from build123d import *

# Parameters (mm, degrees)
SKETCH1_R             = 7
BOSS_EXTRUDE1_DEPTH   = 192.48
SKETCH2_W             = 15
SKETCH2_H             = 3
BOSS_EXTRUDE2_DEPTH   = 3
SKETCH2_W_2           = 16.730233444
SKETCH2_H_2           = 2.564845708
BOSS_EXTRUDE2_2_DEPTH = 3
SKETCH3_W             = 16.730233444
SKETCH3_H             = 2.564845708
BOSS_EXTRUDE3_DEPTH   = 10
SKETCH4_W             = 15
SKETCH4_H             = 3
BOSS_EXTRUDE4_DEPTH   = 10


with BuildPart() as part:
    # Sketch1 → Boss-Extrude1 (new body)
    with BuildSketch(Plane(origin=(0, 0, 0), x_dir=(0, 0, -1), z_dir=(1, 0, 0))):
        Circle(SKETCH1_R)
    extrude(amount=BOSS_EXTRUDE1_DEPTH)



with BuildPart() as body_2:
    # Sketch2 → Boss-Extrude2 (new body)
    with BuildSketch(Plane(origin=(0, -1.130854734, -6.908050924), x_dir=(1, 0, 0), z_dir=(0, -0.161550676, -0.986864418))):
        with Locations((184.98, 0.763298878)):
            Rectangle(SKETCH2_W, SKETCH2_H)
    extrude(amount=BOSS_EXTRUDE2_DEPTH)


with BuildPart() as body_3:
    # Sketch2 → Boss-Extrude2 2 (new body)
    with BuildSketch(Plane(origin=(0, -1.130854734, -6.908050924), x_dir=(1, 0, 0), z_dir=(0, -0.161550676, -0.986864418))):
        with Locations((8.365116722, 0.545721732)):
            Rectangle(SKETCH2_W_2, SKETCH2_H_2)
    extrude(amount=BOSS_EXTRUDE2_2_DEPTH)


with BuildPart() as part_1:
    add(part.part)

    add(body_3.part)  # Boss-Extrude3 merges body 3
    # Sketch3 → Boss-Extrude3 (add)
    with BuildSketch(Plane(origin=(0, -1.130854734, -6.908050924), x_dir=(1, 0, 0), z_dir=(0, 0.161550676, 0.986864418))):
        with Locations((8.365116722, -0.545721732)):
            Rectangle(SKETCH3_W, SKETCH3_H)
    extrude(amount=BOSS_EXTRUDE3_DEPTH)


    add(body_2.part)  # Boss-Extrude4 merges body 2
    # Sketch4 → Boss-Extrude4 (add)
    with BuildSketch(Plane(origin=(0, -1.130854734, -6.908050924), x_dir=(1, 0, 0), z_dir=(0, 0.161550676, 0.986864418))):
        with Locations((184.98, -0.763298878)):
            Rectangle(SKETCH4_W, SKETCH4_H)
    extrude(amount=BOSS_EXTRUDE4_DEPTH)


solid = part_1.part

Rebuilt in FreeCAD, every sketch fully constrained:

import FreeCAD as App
import Part
import Sketcher


def add_polygon(sketch, points):
    """Adds a closed chain of lines whose ends are joined by coincident constraints."""
    first, n = sketch.GeometryCount, len(points)
    for a, b in zip(points, points[1:] + points[:1]):
        sketch.addGeometry(Part.LineSegment(App.Vector(*a, 0), App.Vector(*b, 0)), False)
    for i in range(n):
        sketch.addConstraint(Sketcher.Constraint("Coincident", first + i, 2, first + (i + 1) % n, 1))

doc = App.newDocument("Part")
body = doc.addObject("PartDesign::Body", "Body")

sketch1 = body.newObject("Sketcher::SketchObject", "Sketch")
sketch1.AttachmentSupport = (doc.getObject("YZ_Plane"), [""])
sketch1.MapMode = "FlatFace"
sketch1.addGeometry(Part.Circle(App.Vector(0, 0, 0), App.Vector(0, 0, 1), 7), False)
sketch1.addConstraint(Sketcher.Constraint("Coincident", 0, 3, -1, 1))
sketch1.addConstraint(Sketcher.Constraint("Diameter", 0, 14.0))
pad1 = body.newObject("PartDesign::Pad", "Pad")
pad1.Profile = sketch1
pad1.Length = 192.48
body2 = doc.addObject("PartDesign::Body", "Body001")

sketch2 = body2.newObject("Sketcher::SketchObject", "Sketch001")
sketch2.Placement = App.Placement(App.Vector(0, -1.130855, -6.908051), App.Rotation(App.Vector(1, 0, 0), App.Vector(0, -0.986864418, 0.161550676), App.Vector(0, -0.161550676, -0.986864418), "ZXY"))
add_polygon(sketch2, [(177.48, 2.263299), (177.48, -0.736701), (192.48, -0.736701), (192.48, 2.263299)])
sketch2.addConstraint(Sketcher.Constraint("Vertical", 0))
sketch2.addConstraint(Sketcher.Constraint("Horizontal", 1))
sketch2.addConstraint(Sketcher.Constraint("Vertical", 2))
sketch2.addConstraint(Sketcher.Constraint("Horizontal", 3))
sketch2.addConstraint(Sketcher.Constraint("DistanceX", 1, 1, 1, 2, 15.0))
sketch2.addConstraint(Sketcher.Constraint("DistanceY", 0, 2, 0, 1, 3.0))
sketch2.addConstraint(Sketcher.Constraint("DistanceX", -1, 1, 0, 2, 177.48))
sketch2.addConstraint(Sketcher.Constraint("DistanceY", 0, 2, -1, 1, 0.736701))
pad2 = body2.newObject("PartDesign::Pad", "Pad001")
pad2.Profile = sketch2
pad2.Length = 3
body3 = doc.addObject("PartDesign::Body", "Body002")

sketch3 = body3.newObject("Sketcher::SketchObject", "Sketch002")
sketch3.Placement = App.Placement(App.Vector(0, -1.130855, -6.908051), App.Rotation(App.Vector(1, 0, 0), App.Vector(0, -0.986864418, 0.161550676), App.Vector(0, -0.161550676, -0.986864418), "ZXY"))
add_polygon(sketch3, [(0, 1.828145), (0, -0.736701), (16.730233, -0.736701), (16.730233, 1.828145)])
sketch3.addConstraint(Sketcher.Constraint("Vertical", 0))
sketch3.addConstraint(Sketcher.Constraint("Horizontal", 1))
sketch3.addConstraint(Sketcher.Constraint("Vertical", 2))
sketch3.addConstraint(Sketcher.Constraint("Horizontal", 3))
sketch3.addConstraint(Sketcher.Constraint("PointOnObject", 0, 2, -2))
sketch3.addConstraint(Sketcher.Constraint("DistanceY", 0, 2, -1, 1, 0.736701))
sketch3.addConstraint(Sketcher.Constraint("DistanceX", 1, 1, 1, 2, 16.730233))
sketch3.addConstraint(Sketcher.Constraint("DistanceY", 0, 2, 0, 1, 2.564846))
pad3 = body3.newObject("PartDesign::Pad", "Pad002")
pad3.Profile = sketch3
pad3.Length = 3
body.AllowCompound = True
doc.recompute()

boolean = body.newObject("PartDesign::Boolean", "Boolean")
boolean.Type = "Fuse"
boolean.addObjects([body3])

sketch4 = body.newObject("Sketcher::SketchObject", "Sketch003")
sketch4.Placement = App.Placement(App.Vector(0, -1.130855, -6.908051), App.Rotation(App.Vector(1, 0, 0), App.Vector(0, 0.986864418, -0.161550676), App.Vector(0, 0.161550676, 0.986864418), "ZXY"))
add_polygon(sketch4, [(0, 0.736701), (0, -1.828145), (16.730233, -1.828145), (16.730233, 0.736701)])
sketch4.addConstraint(Sketcher.Constraint("Vertical", 0))
sketch4.addConstraint(Sketcher.Constraint("Horizontal", 1))
sketch4.addConstraint(Sketcher.Constraint("Vertical", 2))
sketch4.addConstraint(Sketcher.Constraint("Horizontal", 3))
sketch4.addConstraint(Sketcher.Constraint("PointOnObject", 0, 2, -2))
sketch4.addConstraint(Sketcher.Constraint("DistanceY", -1, 1, 2, 2, 0.736701))
sketch4.addConstraint(Sketcher.Constraint("DistanceX", 1, 1, 1, 2, 16.730233))
sketch4.addConstraint(Sketcher.Constraint("DistanceY", 0, 2, 0, 1, 2.564846))
pad4 = body.newObject("PartDesign::Pad", "Pad003")
pad4.Profile = sketch4
pad4.Length = 10
doc.recompute()

boolean2 = body.newObject("PartDesign::Boolean", "Boolean001")
boolean2.Type = "Fuse"
boolean2.addObjects([body2])

sketch5 = body.newObject("Sketcher::SketchObject", "Sketch004")
sketch5.Placement = App.Placement(App.Vector(0, -1.130855, -6.908051), App.Rotation(App.Vector(1, 0, 0), App.Vector(0, 0.986864418, -0.161550676), App.Vector(0, 0.161550676, 0.986864418), "ZXY"))
add_polygon(sketch5, [(177.48, 0.736701), (177.48, -2.263299), (192.48, -2.263299), (192.48, 0.736701)])
sketch5.addConstraint(Sketcher.Constraint("Vertical", 0))
sketch5.addConstraint(Sketcher.Constraint("Horizontal", 1))
sketch5.addConstraint(Sketcher.Constraint("Vertical", 2))
sketch5.addConstraint(Sketcher.Constraint("Horizontal", 3))
sketch5.addConstraint(Sketcher.Constraint("DistanceX", 1, 1, 1, 2, 15.0))
sketch5.addConstraint(Sketcher.Constraint("DistanceY", 0, 2, 0, 1, 3.0))
sketch5.addConstraint(Sketcher.Constraint("DistanceX", -1, 1, 0, 2, 177.48))
sketch5.addConstraint(Sketcher.Constraint("DistanceY", 0, 2, -1, 1, 2.263299))
pad5 = body.newObject("PartDesign::Pad", "Pad004")
pad5.Profile = sketch5
pad5.Length = 10

doc.recompute()
